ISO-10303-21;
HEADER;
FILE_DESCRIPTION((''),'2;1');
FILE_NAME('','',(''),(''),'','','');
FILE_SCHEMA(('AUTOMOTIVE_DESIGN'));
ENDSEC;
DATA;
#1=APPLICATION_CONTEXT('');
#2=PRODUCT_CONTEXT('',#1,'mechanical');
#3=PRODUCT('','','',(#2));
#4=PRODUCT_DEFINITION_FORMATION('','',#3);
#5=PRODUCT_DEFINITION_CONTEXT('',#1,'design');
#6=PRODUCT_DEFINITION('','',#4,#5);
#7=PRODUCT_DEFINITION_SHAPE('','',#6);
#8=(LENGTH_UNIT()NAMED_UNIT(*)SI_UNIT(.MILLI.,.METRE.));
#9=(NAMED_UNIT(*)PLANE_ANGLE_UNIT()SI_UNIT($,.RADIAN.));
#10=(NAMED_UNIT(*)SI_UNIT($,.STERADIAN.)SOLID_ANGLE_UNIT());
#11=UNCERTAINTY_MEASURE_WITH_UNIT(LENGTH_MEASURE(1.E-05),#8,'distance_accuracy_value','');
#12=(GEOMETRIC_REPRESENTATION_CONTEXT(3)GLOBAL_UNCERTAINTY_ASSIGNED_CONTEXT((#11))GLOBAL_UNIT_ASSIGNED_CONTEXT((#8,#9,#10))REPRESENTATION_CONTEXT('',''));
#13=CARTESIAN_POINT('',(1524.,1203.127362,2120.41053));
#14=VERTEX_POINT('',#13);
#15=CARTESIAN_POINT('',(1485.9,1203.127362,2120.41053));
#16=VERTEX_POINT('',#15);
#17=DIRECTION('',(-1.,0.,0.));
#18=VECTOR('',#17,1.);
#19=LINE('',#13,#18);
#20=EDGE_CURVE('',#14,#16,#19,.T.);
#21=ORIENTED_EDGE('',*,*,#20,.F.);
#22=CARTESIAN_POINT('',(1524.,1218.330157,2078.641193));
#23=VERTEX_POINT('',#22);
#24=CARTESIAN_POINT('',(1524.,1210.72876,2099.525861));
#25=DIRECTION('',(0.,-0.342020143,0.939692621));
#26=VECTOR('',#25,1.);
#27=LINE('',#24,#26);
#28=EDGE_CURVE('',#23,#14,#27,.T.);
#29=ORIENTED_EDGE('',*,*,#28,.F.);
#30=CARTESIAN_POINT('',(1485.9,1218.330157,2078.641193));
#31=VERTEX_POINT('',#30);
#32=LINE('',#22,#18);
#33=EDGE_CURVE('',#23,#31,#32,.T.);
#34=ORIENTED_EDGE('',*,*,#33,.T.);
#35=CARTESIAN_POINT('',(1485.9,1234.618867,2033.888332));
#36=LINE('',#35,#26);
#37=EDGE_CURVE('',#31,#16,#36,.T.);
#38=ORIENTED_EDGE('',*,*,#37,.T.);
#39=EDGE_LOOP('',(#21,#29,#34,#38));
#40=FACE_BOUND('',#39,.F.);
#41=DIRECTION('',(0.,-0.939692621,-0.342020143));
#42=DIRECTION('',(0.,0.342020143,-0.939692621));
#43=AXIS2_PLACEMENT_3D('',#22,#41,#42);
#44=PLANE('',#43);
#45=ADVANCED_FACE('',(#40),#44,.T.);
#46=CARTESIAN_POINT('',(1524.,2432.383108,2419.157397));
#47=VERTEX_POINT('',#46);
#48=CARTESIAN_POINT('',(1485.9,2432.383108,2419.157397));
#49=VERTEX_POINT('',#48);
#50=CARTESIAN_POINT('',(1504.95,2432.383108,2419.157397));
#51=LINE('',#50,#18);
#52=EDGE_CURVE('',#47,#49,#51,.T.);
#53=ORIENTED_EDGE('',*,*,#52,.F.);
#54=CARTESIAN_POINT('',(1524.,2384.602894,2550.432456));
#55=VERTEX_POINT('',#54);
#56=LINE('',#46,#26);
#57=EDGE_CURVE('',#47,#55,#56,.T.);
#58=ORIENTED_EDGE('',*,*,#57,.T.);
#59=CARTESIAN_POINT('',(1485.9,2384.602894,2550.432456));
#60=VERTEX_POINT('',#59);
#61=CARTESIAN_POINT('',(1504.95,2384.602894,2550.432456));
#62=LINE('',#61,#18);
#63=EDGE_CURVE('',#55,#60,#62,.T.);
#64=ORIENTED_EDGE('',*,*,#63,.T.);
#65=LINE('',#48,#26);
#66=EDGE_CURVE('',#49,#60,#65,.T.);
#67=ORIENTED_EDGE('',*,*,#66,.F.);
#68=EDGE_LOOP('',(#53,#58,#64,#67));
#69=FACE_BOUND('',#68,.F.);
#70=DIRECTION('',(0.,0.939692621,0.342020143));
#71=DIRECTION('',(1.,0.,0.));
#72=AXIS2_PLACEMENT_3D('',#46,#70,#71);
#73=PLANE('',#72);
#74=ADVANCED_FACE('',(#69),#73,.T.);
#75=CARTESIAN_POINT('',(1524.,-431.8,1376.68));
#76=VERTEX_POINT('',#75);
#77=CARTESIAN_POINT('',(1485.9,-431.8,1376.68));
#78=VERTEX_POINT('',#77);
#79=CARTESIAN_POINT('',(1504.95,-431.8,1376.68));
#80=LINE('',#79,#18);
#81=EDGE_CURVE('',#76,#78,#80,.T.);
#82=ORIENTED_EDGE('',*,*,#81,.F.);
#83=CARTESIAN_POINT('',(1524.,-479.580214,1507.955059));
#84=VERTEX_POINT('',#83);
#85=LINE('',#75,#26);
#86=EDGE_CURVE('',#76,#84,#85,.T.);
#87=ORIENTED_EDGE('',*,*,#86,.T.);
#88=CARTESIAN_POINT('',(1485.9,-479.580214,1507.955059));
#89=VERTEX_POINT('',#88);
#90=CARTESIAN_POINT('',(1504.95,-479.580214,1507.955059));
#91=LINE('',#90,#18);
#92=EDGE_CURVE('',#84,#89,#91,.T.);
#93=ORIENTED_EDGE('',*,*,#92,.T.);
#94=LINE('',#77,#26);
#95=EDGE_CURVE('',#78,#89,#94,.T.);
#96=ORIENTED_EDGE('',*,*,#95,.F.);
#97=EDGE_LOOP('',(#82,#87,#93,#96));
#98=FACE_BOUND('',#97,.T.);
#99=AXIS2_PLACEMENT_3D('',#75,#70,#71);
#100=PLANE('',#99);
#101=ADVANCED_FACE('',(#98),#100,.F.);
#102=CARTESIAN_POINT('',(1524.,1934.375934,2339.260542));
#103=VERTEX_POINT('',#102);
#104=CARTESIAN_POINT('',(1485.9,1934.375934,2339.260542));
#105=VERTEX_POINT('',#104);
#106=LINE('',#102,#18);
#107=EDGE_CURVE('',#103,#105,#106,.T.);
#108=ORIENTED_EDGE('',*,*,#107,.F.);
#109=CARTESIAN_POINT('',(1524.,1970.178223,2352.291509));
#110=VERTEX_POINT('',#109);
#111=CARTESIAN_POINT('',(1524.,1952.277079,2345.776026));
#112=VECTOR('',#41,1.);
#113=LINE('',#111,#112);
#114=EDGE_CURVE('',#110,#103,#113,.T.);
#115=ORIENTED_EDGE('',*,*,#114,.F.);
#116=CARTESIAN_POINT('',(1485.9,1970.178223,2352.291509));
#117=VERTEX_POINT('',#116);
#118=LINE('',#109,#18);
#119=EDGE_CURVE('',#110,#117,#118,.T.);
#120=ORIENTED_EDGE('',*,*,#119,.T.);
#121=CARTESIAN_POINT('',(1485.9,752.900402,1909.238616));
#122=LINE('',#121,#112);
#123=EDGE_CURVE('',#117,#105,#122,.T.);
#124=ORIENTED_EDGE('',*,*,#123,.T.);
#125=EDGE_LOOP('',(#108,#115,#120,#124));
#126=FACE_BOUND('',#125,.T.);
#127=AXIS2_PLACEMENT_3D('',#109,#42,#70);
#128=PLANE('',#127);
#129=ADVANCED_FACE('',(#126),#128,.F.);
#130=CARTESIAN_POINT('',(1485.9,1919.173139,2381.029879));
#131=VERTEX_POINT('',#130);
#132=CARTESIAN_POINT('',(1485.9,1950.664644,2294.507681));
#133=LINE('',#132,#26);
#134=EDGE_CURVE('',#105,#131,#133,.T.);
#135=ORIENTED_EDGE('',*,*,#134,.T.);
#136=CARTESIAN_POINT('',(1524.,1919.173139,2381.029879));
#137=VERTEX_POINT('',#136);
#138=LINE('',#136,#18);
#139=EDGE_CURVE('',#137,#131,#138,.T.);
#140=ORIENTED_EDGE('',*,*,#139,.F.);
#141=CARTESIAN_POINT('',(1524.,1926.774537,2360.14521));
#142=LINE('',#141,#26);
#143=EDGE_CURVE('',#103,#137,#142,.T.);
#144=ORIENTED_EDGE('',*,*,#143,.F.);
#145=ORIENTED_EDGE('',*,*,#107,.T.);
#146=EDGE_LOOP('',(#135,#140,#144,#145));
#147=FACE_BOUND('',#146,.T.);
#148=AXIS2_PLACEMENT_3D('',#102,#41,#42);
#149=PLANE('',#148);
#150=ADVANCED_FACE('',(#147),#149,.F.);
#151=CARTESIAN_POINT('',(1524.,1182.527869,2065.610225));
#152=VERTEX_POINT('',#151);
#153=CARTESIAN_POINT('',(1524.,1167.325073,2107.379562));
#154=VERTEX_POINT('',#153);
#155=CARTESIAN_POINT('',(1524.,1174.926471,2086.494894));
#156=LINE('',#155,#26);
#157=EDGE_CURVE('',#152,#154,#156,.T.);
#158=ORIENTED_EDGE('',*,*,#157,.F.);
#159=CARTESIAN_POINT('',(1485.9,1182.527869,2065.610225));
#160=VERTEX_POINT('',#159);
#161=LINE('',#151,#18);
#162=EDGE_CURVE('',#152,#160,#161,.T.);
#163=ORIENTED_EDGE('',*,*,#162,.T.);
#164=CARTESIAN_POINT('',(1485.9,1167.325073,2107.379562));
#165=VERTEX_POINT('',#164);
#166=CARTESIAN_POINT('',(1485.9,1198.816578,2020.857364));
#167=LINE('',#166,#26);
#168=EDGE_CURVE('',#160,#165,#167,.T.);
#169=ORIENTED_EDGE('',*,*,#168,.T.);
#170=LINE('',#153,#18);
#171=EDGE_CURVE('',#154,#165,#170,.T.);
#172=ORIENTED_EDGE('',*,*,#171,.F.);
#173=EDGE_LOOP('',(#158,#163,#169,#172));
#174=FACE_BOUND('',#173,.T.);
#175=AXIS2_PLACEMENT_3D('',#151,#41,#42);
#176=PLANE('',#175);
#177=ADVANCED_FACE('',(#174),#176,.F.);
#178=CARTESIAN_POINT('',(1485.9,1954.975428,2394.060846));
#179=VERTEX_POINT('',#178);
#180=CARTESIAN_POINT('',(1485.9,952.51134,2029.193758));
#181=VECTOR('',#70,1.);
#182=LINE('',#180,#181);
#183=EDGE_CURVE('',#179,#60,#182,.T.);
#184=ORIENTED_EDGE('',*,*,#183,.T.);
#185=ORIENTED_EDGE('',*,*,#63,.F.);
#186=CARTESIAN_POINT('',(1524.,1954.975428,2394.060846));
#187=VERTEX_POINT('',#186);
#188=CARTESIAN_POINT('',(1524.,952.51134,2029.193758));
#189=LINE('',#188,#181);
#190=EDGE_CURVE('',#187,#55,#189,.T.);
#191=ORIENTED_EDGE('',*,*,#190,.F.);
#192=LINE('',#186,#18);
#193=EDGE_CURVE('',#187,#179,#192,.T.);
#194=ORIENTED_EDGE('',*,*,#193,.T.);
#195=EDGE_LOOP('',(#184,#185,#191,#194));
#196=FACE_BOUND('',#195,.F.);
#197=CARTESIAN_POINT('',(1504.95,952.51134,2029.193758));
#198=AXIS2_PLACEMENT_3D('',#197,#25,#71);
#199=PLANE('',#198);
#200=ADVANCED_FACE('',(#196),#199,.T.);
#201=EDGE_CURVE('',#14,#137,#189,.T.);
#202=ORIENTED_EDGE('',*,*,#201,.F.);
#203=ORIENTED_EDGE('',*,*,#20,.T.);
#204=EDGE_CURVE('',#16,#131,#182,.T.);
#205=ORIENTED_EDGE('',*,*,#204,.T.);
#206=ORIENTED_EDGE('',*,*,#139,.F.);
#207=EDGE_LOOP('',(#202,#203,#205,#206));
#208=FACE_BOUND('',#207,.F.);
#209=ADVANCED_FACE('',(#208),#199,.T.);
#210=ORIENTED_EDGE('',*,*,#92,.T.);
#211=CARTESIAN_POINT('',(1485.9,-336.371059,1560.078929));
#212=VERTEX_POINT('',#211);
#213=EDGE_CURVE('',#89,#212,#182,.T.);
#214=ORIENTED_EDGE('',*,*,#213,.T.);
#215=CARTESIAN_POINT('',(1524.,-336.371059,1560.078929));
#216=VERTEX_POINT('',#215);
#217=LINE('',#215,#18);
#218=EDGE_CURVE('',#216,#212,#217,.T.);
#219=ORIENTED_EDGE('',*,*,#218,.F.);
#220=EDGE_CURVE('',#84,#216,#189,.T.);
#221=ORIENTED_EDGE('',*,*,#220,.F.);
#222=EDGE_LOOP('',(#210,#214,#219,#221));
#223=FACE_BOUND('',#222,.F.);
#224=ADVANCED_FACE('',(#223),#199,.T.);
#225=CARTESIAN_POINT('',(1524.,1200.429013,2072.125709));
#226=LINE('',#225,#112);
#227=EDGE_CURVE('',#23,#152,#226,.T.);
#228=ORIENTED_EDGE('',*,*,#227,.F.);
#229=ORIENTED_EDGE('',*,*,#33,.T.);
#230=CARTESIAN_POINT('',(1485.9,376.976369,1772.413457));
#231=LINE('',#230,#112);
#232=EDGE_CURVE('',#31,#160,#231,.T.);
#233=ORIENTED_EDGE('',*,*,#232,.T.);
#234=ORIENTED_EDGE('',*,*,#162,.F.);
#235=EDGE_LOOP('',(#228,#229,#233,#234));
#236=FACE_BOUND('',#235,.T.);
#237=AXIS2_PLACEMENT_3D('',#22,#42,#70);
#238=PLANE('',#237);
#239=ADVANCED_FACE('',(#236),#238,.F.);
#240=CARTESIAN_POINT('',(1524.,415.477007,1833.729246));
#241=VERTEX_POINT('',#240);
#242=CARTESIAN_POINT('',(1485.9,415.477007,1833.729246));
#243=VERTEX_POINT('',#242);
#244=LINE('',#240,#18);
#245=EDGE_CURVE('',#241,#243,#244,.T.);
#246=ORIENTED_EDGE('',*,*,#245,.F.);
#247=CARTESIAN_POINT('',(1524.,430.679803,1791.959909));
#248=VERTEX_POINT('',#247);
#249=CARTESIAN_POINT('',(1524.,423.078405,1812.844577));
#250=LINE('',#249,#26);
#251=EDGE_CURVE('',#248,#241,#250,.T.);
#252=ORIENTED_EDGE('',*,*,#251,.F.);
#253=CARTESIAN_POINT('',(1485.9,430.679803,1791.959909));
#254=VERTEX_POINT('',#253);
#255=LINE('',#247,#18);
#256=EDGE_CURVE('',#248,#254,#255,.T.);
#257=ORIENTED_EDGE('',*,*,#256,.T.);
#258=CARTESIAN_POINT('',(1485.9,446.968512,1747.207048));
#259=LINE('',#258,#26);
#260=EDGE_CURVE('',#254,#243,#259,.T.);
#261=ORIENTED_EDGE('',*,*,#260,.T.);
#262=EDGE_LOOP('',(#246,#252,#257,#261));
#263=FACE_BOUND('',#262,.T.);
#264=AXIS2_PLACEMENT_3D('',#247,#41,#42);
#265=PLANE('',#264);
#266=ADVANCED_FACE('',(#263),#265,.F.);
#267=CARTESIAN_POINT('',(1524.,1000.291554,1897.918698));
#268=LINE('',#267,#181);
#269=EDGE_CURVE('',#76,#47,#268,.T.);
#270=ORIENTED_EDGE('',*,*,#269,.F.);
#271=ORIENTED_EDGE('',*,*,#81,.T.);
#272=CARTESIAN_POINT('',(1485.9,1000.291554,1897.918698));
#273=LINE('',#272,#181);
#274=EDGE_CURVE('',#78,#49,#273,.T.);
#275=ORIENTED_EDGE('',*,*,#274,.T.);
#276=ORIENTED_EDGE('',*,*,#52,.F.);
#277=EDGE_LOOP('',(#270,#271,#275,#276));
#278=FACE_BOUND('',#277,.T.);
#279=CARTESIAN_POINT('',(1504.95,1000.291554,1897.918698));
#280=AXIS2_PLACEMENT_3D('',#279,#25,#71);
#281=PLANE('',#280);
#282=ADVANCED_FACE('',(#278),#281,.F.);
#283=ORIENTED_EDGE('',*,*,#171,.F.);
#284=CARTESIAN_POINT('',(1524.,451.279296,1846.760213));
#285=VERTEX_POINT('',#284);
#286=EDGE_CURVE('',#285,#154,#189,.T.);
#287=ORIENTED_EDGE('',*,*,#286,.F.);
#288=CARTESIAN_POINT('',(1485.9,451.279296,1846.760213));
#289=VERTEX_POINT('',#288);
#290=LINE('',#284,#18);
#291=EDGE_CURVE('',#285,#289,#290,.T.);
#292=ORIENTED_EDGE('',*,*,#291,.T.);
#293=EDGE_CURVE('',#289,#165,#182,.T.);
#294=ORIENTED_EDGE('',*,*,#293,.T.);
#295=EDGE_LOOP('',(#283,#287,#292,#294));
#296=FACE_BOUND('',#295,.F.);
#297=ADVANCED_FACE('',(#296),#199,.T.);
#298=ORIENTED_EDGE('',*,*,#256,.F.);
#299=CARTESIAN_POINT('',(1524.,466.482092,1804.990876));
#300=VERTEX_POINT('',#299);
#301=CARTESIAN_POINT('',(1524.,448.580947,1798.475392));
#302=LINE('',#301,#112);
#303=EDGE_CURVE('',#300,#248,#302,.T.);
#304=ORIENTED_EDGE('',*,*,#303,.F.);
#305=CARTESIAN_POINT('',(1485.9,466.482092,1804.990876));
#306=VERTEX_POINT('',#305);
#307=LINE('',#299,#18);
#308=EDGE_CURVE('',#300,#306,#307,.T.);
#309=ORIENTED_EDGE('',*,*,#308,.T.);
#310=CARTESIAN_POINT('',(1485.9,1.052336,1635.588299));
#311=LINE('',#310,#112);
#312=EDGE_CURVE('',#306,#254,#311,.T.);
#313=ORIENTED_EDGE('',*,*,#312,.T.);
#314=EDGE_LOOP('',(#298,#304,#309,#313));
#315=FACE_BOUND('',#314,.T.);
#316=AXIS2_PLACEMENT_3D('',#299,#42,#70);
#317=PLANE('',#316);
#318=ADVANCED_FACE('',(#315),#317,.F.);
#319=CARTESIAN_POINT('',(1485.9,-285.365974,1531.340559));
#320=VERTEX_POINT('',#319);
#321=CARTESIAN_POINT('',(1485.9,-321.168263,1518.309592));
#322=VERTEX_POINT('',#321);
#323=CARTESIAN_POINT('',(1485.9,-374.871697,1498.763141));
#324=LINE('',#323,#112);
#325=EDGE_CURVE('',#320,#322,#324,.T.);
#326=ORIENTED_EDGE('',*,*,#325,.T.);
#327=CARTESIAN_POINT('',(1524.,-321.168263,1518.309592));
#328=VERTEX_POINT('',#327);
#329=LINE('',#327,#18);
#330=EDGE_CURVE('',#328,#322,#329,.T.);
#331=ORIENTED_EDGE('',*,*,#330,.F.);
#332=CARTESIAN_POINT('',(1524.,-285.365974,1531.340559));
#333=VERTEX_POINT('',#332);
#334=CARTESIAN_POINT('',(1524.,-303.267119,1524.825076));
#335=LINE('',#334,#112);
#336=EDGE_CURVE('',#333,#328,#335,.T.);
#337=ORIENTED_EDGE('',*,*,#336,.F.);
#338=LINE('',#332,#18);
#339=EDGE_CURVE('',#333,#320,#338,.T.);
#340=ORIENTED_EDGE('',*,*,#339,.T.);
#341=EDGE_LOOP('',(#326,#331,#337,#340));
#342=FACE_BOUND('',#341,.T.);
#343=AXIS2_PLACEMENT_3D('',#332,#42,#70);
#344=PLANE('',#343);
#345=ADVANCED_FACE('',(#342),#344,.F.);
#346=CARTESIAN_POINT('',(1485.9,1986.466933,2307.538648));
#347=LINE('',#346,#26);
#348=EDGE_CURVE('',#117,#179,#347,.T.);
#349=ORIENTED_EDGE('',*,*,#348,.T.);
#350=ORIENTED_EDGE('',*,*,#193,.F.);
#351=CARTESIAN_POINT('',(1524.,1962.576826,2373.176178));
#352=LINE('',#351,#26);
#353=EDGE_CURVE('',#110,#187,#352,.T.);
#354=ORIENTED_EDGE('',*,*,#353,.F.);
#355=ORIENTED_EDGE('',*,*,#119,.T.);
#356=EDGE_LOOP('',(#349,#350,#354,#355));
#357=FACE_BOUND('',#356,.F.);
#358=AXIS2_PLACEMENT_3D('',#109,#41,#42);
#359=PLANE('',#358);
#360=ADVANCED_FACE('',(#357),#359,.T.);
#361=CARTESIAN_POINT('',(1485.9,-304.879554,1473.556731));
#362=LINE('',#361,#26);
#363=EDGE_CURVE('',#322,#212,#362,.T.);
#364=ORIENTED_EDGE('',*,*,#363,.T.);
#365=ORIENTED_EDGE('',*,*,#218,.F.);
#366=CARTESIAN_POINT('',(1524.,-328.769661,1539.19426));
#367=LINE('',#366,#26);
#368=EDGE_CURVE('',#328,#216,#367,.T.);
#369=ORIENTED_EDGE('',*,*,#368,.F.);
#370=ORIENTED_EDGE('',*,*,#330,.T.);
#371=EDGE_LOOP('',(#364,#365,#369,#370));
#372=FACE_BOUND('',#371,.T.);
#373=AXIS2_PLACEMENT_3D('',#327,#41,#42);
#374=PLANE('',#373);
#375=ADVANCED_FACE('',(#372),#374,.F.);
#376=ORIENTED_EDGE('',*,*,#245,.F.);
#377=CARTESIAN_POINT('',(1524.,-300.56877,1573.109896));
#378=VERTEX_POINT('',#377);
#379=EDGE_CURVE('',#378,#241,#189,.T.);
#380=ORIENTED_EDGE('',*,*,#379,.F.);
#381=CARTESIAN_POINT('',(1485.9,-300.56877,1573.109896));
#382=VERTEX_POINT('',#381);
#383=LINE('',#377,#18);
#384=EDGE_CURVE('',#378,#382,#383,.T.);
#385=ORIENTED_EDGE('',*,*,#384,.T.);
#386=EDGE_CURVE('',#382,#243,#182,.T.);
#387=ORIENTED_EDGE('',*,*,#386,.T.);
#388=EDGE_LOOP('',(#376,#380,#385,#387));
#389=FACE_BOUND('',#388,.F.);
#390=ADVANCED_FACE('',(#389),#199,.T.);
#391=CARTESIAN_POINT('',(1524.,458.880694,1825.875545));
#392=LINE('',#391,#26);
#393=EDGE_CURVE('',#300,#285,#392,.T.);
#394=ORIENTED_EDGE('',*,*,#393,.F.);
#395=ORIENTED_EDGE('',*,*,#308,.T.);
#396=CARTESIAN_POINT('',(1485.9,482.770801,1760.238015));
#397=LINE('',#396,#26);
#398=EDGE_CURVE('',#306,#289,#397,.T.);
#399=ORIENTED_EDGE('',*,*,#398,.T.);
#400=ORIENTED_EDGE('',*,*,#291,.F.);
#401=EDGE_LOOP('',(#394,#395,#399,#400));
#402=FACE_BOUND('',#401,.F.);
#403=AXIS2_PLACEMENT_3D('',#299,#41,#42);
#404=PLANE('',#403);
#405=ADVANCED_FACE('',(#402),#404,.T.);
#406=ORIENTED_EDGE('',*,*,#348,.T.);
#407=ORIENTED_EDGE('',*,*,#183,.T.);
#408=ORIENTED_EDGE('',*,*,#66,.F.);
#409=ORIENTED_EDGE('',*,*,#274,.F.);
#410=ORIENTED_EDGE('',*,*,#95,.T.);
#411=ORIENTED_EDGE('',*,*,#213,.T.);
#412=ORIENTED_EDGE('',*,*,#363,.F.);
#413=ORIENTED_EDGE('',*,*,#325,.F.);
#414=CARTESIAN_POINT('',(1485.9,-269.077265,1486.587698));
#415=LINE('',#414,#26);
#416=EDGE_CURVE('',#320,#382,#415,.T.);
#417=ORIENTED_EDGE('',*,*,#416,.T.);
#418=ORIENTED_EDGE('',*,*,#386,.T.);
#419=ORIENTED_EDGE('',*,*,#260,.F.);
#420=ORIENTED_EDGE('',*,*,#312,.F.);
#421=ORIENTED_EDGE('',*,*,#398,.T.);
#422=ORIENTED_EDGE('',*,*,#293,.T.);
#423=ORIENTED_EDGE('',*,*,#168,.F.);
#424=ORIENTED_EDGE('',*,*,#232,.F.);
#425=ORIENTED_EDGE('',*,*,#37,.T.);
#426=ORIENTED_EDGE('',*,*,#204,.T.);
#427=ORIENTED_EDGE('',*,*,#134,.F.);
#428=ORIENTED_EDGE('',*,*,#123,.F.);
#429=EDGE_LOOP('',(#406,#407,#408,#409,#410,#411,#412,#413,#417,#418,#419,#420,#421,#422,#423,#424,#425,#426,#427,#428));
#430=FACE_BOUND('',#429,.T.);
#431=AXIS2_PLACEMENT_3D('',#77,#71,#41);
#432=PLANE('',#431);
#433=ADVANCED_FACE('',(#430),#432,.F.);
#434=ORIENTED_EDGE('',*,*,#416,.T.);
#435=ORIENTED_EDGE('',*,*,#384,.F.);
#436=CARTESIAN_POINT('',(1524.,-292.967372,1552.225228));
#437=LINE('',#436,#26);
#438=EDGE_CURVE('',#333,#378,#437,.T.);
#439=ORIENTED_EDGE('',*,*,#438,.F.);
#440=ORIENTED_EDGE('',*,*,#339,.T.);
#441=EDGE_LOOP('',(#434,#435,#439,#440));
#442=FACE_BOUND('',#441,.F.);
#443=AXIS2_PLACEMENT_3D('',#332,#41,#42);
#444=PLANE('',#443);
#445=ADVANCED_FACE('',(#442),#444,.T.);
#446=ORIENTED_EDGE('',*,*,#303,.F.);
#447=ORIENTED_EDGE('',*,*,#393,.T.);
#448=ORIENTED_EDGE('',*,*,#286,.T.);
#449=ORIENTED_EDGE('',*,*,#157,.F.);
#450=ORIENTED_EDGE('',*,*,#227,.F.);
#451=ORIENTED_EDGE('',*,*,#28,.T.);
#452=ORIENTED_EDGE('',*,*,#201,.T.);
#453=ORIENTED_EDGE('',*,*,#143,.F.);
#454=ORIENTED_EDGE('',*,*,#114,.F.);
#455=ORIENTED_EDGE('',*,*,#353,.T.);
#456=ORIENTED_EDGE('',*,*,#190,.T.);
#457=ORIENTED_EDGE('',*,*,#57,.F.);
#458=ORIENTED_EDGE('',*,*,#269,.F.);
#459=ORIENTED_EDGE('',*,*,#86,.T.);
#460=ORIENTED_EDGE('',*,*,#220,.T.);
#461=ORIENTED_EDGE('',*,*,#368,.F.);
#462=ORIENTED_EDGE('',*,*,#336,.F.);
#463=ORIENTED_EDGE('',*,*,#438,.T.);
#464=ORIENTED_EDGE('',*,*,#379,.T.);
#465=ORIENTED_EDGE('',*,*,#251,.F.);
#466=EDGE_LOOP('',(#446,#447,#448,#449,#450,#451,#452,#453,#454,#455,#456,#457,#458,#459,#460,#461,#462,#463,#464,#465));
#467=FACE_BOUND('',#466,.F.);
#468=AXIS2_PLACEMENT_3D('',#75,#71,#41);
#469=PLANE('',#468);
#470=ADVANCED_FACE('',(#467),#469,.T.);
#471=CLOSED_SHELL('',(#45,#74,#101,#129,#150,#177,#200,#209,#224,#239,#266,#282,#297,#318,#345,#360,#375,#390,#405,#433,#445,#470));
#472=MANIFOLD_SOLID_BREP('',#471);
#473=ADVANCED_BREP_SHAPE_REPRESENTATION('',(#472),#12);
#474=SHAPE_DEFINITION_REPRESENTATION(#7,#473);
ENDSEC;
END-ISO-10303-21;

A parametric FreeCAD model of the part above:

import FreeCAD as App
import Part
import Sketcher

V = App.Vector
Q = App.Units.Quantity

doc = App.newDocument("Part")
body = doc.addObject("PartDesign::Body", "Body")

# Sketch on XY plane
sketch1 = body.newObject("Sketcher::SketchObject", "Sketch")
sketch1.AttachmentSupport = (doc.getObject("XY_Plane"), [""])
sketch1.MapMode = "FlatFace"
sketch1.addGeometry([
    Part.LineSegment(V(0, 3048, 0), V(0, 0, 0)),
    Part.LineSegment(V(0, 0, 0), V(38, 0, 0)),
    Part.LineSegment(V(38, 0, 0), V(38, 3048, 0)),
    Part.LineSegment(V(38, 3048, 0), V(0, 3048, 0)),
], False)
sketch1.addConstraint([
    Sketcher.Constraint("Coincident", 0, 2, 1, 1),
    Sketcher.Constraint("Coincident", 1, 2, 2, 1),
    Sketcher.Constraint("Coincident", 2, 2, 3, 1),
    Sketcher.Constraint("Coincident", 3, 2, 0, 1),
    Sketcher.Constraint("Vertical", 0),
    Sketcher.Constraint("Horizontal", 1),
    Sketcher.Constraint("Vertical", 2),
    Sketcher.Constraint("Horizontal", 3),
    Sketcher.Constraint("Coincident", 0, 2, -1, 1),
    Sketcher.Constraint("DistanceY", 0, 2, 0, 1, Q("120 in")),
    Sketcher.Constraint("DistanceX", 1, 1, 1, 2, Q("1.5 in")),
])
pad1 = body.newObject("PartDesign::Pad", "Pad")
pad1.Profile = sketch1
pad1.Length = Q("5.5 in")
body2 = doc.addObject("PartDesign::Body", "Body001")
doc.recompute()

body.Placement = App.Placement(V(0, 0, 0), App.Rotation(V(1, 0, 0), 20))
boolean = body2.newObject("PartDesign::Boolean", "Boolean")
boolean.Type = "Fuse"
boolean.addObjects([body])
body3 = doc.addObject("PartDesign::Body", "Body002")
doc.recompute()

body2.Placement = App.Placement(V(0, -431.8, 1376.68), App.Rotation(V(0, 0, 1), 0))
boolean2 = body3.newObject("PartDesign::Boolean", "Boolean001")
boolean2.Type = "Fuse"
boolean2.addObjects([body2])

# Sketch on YZ plane
sketch2 = body3.newObject("Sketcher::SketchObject", "Sketch001")
sketch2.AttachmentSupport = (doc.getObject("YZ_Plane002"), [""])
sketch2.MapMode = "FlatFace"
sketch2.addGeometry([
    Part.LineSegment(V(-301, 1573, 0), V(-285, 1531, 0)),
    Part.LineSegment(V(-285, 1531, 0), V(-321, 1518, 0)),
    Part.LineSegment(V(-321, 1518, 0), V(-336, 1560, 0)),
    Part.LineSegment(V(-336, 1560, 0), V(-301, 1573, 0)),
], False)
sketch2.addConstraint([
    Sketcher.Constraint("Coincident", 0, 2, 1, 1),
    Sketcher.Constraint("Coincident", 1, 2, 2, 1),
    Sketcher.Constraint("Coincident", 2, 2, 3, 1),
    Sketcher.Constraint("Coincident", 3, 2, 0, 1),
    Sketcher.Constraint("Perpendicular", 0, 1),
    Sketcher.Constraint("Perpendicular", 1, 2),
    Sketcher.Constraint("Perpendicular", 2, 3),
    Sketcher.Constraint("Angle", 0, Q("-70 deg")),
    Sketcher.Constraint("Distance", 1, Q("1.5 in")),
    Sketcher.Constraint("Distance", 0, Q("1.75 in")),
    Sketcher.Constraint("DistanceY", -1, 1, 0, 2, Q("1531.340559 mm")),
    Sketcher.Constraint("DistanceX", 2, 2, -1, 1, Q("336.371059 mm")),
])
pocket1 = body3.newObject("PartDesign::Pocket", "Pocket")
pocket1.Profile = sketch2
pocket1.Type = "ThroughAll"
pocket1.Reversed = True
doc.recompute()

datumline = body3.newObject("PartDesign::Line", "DatumLine")
datumline.Placement = App.Placement(V(0, 0, 0), App.Rotation(V(0, 0, 1), V(0, 0.939692621, 0.342020143)))
linearpattern = body3.newObject("PartDesign::LinearPattern", "LinearPattern")
linearpattern.Originals = [pocket1]
linearpattern.Direction = (datumline, [""])
linearpattern.Mode = "offset"
linearpattern.Offset = Q("31.5 in")
linearpattern.Occurrences = 4
body3.Tip = linearpattern
body4 = doc.addObject("PartDesign::Body", "Body003")
doc.recompute()

mirroring = doc.addObject("Part::Mirroring", "Mirroring")
mirroring.Source = body3
mirroring.Base = V(762, 0, 0)
mirroring.Normal = V(1, 0, 0)
body4.BaseFeature = mirroring
doc.recompute()
body3.Visibility = False
mirroring.Visibility = False

doc.recompute()
